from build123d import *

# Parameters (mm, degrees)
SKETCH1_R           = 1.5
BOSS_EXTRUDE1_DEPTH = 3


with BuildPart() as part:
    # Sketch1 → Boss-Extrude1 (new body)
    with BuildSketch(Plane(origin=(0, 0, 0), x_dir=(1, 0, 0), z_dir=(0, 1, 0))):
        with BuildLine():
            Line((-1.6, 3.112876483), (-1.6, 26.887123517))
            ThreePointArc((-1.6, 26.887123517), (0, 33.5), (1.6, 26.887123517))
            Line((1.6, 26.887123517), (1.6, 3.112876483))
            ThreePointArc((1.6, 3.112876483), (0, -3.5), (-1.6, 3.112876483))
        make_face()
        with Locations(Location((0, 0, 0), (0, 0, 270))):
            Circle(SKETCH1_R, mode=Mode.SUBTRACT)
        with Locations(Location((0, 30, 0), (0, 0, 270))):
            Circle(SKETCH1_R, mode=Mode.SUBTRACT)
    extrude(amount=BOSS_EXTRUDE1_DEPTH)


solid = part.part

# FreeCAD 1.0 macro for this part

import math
import FreeCAD as App
import Part
import Sketcher
from FreeCAD import Vector
Q = App.Units.Quantity

doc = App.newDocument("Part")
params = doc.addObject("Spreadsheet::Sheet", "Params")
for row, (alias, value) in enumerate([
    ("sketch1_diameter", "3 mm"),
    ("sketch1_radius", "3.5 mm"),
    ("pad1_length", "3 mm"),
], start=1):
    params.set(f"A{row}", alias)
    params.set(f"B{row}", "=" + value)
    params.setAlias(f"B{row}", alias)

body = doc.addObject("PartDesign::Body", "Body")

sketch1 = body.newObject("Sketcher::SketchObject", "Sketch")
sketch1.AttachmentSupport = (doc.getObject("XZ_Plane"), [""])
sketch1.MapMode = "FlatFace"
sketch1.addGeometry([
    Part.LineSegment(Vector(-1.6, -26.9, 0), Vector(-1.6, -3.1, 0)),
    Part.ArcOfCircle(Part.Circle(Vector(0, 0, 0), Vector(0, 0, 1), 3.5), math.radians(-63), math.radians(243)),
    Part.LineSegment(Vector(1.6, -3.1, 0), Vector(1.6, -26.9, 0)),
    Part.ArcOfCircle(Part.Circle(Vector(0, -30, 0), Vector(0, 0, 1), 3.5), math.radians(117), math.radians(423)),
    Part.Circle(Vector(0, 0, 0), Vector(0, 0, 1), 1.5),
    Part.Circle(Vector(0, -30, 0), Vector(0, 0, 1), 1.5),
], False)
sketch1.addConstraint([
    Sketcher.Constraint("Coincident", 0, 2, 1, 2),
    Sketcher.Constraint("Coincident", 1, 1, 2, 1),
    Sketcher.Constraint("Coincident", 2, 2, 3, 2),
    Sketcher.Constraint("Coincident", 3, 1, 0, 1),
    Sketcher.Constraint("Vertical", 0),
    Sketcher.Constraint("Vertical", 2),
    Sketcher.Constraint("Coincident", 1, 3, -1, 1),
    Sketcher.Constraint("Coincident", 4, 3, -1, 1),
    Sketcher.Constraint("Coincident", 5, 3, 3, 3),
    Sketcher.Constraint("Equal", 1, 3),
    Sketcher.Constraint("Equal", 4, 5),
    Sketcher.Constraint("Symmetric", 2, 2, 3, 1, -2),
    Sketcher.Constraint("Diameter", 4, Q("3 mm")),
    Sketcher.Constraint("Radius", 1, Q("3.5 mm")),
    Sketcher.Constraint("DistanceY", 3, 3, -1, 1, Q("30 mm")),
    Sketcher.Constraint("DistanceX", 0, 2, -1, 1, Q("1.6 mm")),
])
sketch1.setExpression("Constraints[12]", "Params.sketch1_diameter")
sketch1.setExpression("Constraints[13]", "Params.sketch1_radius")
pad1 = body.newObject("PartDesign::Pad", "Pad")
pad1.Profile = sketch1
pad1.setExpression("Length", "Params.pad1_length")
pad1.Reversed = True

doc.recompute()
